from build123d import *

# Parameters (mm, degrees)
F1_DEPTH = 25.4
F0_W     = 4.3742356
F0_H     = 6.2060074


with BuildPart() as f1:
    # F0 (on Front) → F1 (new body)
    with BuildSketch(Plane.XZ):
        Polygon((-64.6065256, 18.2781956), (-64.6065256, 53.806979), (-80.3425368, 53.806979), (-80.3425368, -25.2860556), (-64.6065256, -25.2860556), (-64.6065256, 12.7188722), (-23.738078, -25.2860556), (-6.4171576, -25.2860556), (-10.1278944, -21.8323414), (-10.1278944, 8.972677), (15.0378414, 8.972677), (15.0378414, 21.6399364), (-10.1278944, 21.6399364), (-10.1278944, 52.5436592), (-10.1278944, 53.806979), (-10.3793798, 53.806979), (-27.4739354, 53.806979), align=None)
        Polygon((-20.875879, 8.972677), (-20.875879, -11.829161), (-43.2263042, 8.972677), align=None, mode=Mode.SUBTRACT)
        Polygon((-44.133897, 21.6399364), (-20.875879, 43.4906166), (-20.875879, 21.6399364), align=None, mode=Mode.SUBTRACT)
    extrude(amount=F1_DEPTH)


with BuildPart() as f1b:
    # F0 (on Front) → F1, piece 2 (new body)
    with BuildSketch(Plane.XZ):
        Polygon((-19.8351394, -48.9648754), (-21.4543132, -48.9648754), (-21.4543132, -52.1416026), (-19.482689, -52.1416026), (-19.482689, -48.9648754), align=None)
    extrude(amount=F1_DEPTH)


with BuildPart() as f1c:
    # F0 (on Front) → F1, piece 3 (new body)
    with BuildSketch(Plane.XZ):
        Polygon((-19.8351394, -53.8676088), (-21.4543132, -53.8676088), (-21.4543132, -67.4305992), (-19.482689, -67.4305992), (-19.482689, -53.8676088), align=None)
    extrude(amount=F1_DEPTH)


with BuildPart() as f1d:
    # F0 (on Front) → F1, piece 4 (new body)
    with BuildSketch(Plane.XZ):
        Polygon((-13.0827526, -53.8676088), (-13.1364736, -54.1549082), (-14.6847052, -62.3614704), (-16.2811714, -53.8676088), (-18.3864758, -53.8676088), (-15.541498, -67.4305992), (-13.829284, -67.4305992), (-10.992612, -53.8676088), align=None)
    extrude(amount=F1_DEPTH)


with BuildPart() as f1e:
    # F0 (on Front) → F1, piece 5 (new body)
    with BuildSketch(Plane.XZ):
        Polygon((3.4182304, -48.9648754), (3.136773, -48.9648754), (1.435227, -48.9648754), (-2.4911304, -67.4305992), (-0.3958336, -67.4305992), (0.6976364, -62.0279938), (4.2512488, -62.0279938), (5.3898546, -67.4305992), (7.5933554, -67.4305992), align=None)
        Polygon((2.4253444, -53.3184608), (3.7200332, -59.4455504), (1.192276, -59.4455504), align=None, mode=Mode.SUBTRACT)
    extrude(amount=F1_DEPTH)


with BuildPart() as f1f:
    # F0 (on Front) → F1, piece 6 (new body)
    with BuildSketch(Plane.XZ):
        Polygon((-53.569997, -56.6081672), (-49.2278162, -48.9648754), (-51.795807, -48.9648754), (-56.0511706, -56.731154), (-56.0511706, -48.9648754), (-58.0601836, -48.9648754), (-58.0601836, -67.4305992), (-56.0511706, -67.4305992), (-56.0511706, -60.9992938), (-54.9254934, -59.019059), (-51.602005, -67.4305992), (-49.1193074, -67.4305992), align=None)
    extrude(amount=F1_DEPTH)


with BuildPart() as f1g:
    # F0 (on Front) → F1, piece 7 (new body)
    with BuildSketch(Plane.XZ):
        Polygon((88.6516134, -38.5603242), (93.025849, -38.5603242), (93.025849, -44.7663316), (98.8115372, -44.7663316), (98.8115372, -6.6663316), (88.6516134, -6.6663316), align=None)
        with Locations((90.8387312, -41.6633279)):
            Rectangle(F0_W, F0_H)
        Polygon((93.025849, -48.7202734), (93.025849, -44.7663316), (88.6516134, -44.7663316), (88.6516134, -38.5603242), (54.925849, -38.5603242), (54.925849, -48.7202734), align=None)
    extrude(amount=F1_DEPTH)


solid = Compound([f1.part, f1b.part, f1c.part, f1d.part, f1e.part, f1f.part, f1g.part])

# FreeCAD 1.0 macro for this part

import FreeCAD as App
import Part
import Sketcher
from FreeCAD import Vector
Q = App.Units.Quantity

doc = App.newDocument("Part")
body = doc.addObject("PartDesign::Body", "Body")

# Sketch on XZ plane
sketch1 = body.newObject("Sketcher::SketchObject", "Sketch")
sketch1.AttachmentSupport = (doc.getObject("XZ_Plane"), [""])
sketch1.MapMode = "FlatFace"
sketch1.addGeometry([
    Part.LineSegment(Vector(-65, 18, 0), Vector(-65, 54, 0)),  # 0
    Part.LineSegment(Vector(-65, 54, 0), Vector(-80, 54, 0)),  # 1
    Part.LineSegment(Vector(-80, 54, 0), Vector(-80, -25, 0)),  # 2
    Part.LineSegment(Vector(-80, -25, 0), Vector(-65, -25, 0)),  # 3
    Part.LineSegment(Vector(-65, -25, 0), Vector(-65, 13, 0)),  # 4
    Part.LineSegment(Vector(-65, 13, 0), Vector(-24, -25, 0)),  # 5
    Part.LineSegment(Vector(-24, -25, 0), Vector(-6, -25, 0)),  # 6
    Part.LineSegment(Vector(-6, -25, 0), Vector(-10, -22, 0)),  # 7
    Part.LineSegment(Vector(-10, -22, 0), Vector(-10, 9, 0)),  # 8
    Part.LineSegment(Vector(-10, 9, 0), Vector(15, 9, 0)),  # 9
    Part.LineSegment(Vector(15, 9, 0), Vector(15, 22, 0)),  # 10
    Part.LineSegment(Vector(15, 22, 0), Vector(-10, 22, 0)),  # 11
    Part.LineSegment(Vector(-10, 22, 0), Vector(-10, 54, 0)),  # 12
    Part.LineSegment(Vector(-10, 54, 0), Vector(-27, 54, 0)),  # 13
    Part.LineSegment(Vector(-27, 54, 0), Vector(-65, 18, 0)),  # 14
    Part.LineSegment(Vector(-43, 9, 0), Vector(-21, 9, 0)),  # 15
    Part.LineSegment(Vector(-21, 9, 0), Vector(-21, -12, 0)),  # 16
    Part.LineSegment(Vector(-21, -12, 0), Vector(-43, 9, 0)),  # 17
    Part.LineSegment(Vector(-21, 22, 0), Vector(-44, 22, 0)),  # 18
    Part.LineSegment(Vector(-44, 22, 0), Vector(-21, 43, 0)),  # 19
    Part.LineSegment(Vector(-21, 43, 0), Vector(-21, 22, 0)),  # 20
], False)
sketch1.addConstraint([
    Sketcher.Constraint("Coincident", 0, 2, 1, 1),
    Sketcher.Constraint("Coincident", 1, 2, 2, 1),
    Sketcher.Constraint("Coincident", 2, 2, 3, 1),
    Sketcher.Constraint("Coincident", 3, 2, 4, 1),
    Sketcher.Constraint("Coincident", 4, 2, 5, 1),
    Sketcher.Constraint("Coincident", 5, 2, 6, 1),
    Sketcher.Constraint("Coincident", 6, 2, 7, 1),
    Sketcher.Constraint("Coincident", 7, 2, 8, 1),
    Sketcher.Constraint("Coincident", 8, 2, 9, 1),
    Sketcher.Constraint("Coincident", 9, 2, 10, 1),
    Sketcher.Constraint("Coincident", 10, 2, 11, 1),
    Sketcher.Constraint("Coincident", 11, 2, 12, 1),
    Sketcher.Constraint("Coincident", 12, 2, 13, 1),
    Sketcher.Constraint("Coincident", 13, 2, 14, 1),
    Sketcher.Constraint("Coincident", 14, 2, 0, 1),
    Sketcher.Constraint("Coincident", 15, 2, 16, 1),
    Sketcher.Constraint("Coincident", 16, 2, 17, 1),
    Sketcher.Constraint("Coincident", 17, 2, 15, 1),
    Sketcher.Constraint("Coincident", 18, 2, 19, 1),
    Sketcher.Constraint("Coincident", 19, 2, 20, 1),
    Sketcher.Constraint("Coincident", 20, 2, 18, 1),
    Sketcher.Constraint("Vertical", 0),
    Sketcher.Constraint("Horizontal", 1),
    Sketcher.Constraint("Vertical", 2),
    Sketcher.Constraint("Horizontal", 3),
    Sketcher.Constraint("Vertical", 4),
    Sketcher.Constraint("Horizontal", 6),
    Sketcher.Constraint("Vertical", 8),
    Sketcher.Constraint("Horizontal", 9),
    Sketcher.Constraint("Vertical", 10),
    Sketcher.Constraint("Horizontal", 11),
    Sketcher.Constraint("Vertical", 12),
    Sketcher.Constraint("Horizontal", 13),
    Sketcher.Constraint("Horizontal", 15),
    Sketcher.Constraint("Vertical", 16),
    Sketcher.Constraint("Horizontal", 18),
    Sketcher.Constraint("Vertical", 20),
    Sketcher.Constraint("Horizontal", 3, 2, 5, 2),
    Sketcher.Constraint("Horizontal", 1, 2, 12, 2),
    Sketcher.Constraint("Horizontal", 9, 2, 15, 2),
    Sketcher.Constraint("Horizontal", 11, 2, 18, 2),
    Sketcher.Constraint("Vertical", 0, 2, 3, 2),
    Sketcher.Constraint("Vertical", 8, 2, 11, 2),
    Sketcher.Constraint("Vertical", 16, 2, 19, 2),
    Sketcher.Constraint("Distance", 17, Q("30.5329 mm")),
    Sketcher.Constraint("DistanceX", 1, 2, 1, 1, Q("15.736011 mm")),
    Sketcher.Constraint("DistanceX", 6, 1, 6, 2, Q("17.32092 mm")),
    Sketcher.Constraint("DistanceX", 13, 2, 13, 1, Q("17.346041 mm")),
    Sketcher.Constraint("DistanceY", 8, 1, 8, 2, Q("30.805018 mm")),
    Sketcher.Constraint("DistanceY", 10, 1, 10, 2, Q("12.667259 mm")),
    Sketcher.Constraint("DistanceY", 20, 2, 20, 1, Q("21.85068 mm")),
    Sketcher.Constraint("DistanceX", 6, 2, 9, 2, Q("21.454999 mm")),
    Sketcher.Constraint("DistanceX", 1, 2, 13, 2, Q("52.868601 mm")),
    Sketcher.Constraint("DistanceX", 5, 2, 15, 2, Q("2.862199 mm")),
    Sketcher.Constraint("Distance", 7, Q("5.069291 mm")),
    Sketcher.Constraint("DistanceX", 9, 1, 9, 2, Q("25.165736 mm")),
    Sketcher.Constraint("DistanceX", 15, 1, 15, 2, Q("22.350425 mm")),
    Sketcher.Constraint("DistanceX", 18, 2, 18, 1, Q("23.258018 mm")),
    Sketcher.Constraint("DistanceY", 0, 1, 0, 2, Q("35.528783 mm")),
    Sketcher.Constraint("DistanceY", 2, 2, 2, 1, Q("79.093035 mm")),
    Sketcher.Constraint("DistanceY", 4, 1, 4, 2, Q("38.004928 mm")),
    Sketcher.Constraint("DistanceY", -1, 1, 0, 2, Q("53.806979 mm")),
    Sketcher.Constraint("DistanceX", 5, 2, -1, 1, Q("23.738078 mm")),
])
pad1 = body.newObject("PartDesign::Pad", "Pad")
pad1.Profile = sketch1
pad1.Length = Q("1 in")
body2 = doc.addObject("PartDesign::Body", "Body001")

# Sketch on XZ plane
sketch2 = body2.newObject("Sketcher::SketchObject", "Sketch001")
sketch2.AttachmentSupport = (doc.getObject("XZ_Plane001"), [""])
sketch2.MapMode = "FlatFace"
sketch2.addGeometry([
    Part.LineSegment(Vector(-21.5, -49, 0), Vector(-21.5, -52.1, 0)),
    Part.LineSegment(Vector(-21.5, -52.1, 0), Vector(-19.5, -52.1, 0)),
    Part.LineSegment(Vector(-19.5, -52.1, 0), Vector(-19.5, -49, 0)),
    Part.LineSegment(Vector(-19.5, -49, 0), Vector(-21.5, -49, 0)),
], False)
sketch2.addConstraint([
    Sketcher.Constraint("Coincident", 0, 2, 1, 1),
    Sketcher.Constraint("Coincident", 1, 2, 2, 1),
    Sketcher.Constraint("Coincident", 2, 2, 3, 1),
    Sketcher.Constraint("Coincident", 3, 2, 0, 1),
    Sketcher.Constraint("Vertical", 0),
    Sketcher.Constraint("Horizontal", 1),
    Sketcher.Constraint("Vertical", 2),
    Sketcher.Constraint("Horizontal", 3),
    Sketcher.Constraint("DistanceX", 1, 1, 1, 2, Q("1.971624 mm")),
    Sketcher.Constraint("DistanceY", 0, 2, 0, 1, Q("3.176727 mm")),
    Sketcher.Constraint("DistanceX", 1, 2, -1, 1, Q("19.482689 mm")),
    Sketcher.Constraint("DistanceY", 0, 2, -1, 1, Q("52.141603 mm")),
])
pad2 = body2.newObject("PartDesign::Pad", "Pad001")
pad2.Profile = sketch2
pad2.Length = Q("1 in")
body3 = doc.addObject("PartDesign::Body", "Body002")

# Sketch on XZ plane
sketch3 = body3.newObject("Sketcher::SketchObject", "Sketch002")
sketch3.AttachmentSupport = (doc.getObject("XZ_Plane002"), [""])
sketch3.MapMode = "FlatFace"
sketch3.addGeometry([
    Part.LineSegment(Vector(-21.5, -53.9, 0), Vector(-21.5, -67.4, 0)),
    Part.LineSegment(Vector(-21.5, -67.4, 0), Vector(-19.5, -67.4, 0)),
    Part.LineSegment(Vector(-19.5, -67.4, 0), Vector(-19.5, -53.9, 0)),
    Part.LineSegment(Vector(-19.5, -53.9, 0), Vector(-21.5, -53.9, 0)),
], False)
sketch3.addConstraint([
    Sketcher.Constraint("Coincident", 0, 2, 1, 1),
    Sketcher.Constraint("Coincident", 1, 2, 2, 1),
    Sketcher.Constraint("Coincident", 2, 2, 3, 1),
    Sketcher.Constraint("Coincident", 3, 2, 0, 1),
    Sketcher.Constraint("Vertical", 0),
    Sketcher.Constraint("Horizontal", 1),
    Sketcher.Constraint("Vertical", 2),
    Sketcher.Constraint("Horizontal", 3),
    Sketcher.Constraint("DistanceY", 0, 2, 0, 1, Q("13.56299 mm")),
    Sketcher.Constraint("DistanceY", 0, 2, -1, 1, Q("67.430599 mm")),
    Sketcher.Constraint("DistanceX", 1, 1, 1, 2, Q("1.971624 mm")),
    Sketcher.Constraint("DistanceX", 1, 2, -1, 1, Q("19.482689 mm")),
])
pad3 = body3.newObject("PartDesign::Pad", "Pad002")
pad3.Profile = sketch3
pad3.Length = Q("1 in")
body4 = doc.addObject("PartDesign::Body", "Body003")

# Sketch on XZ plane
sketch4 = body4.newObject("Sketcher::SketchObject", "Sketch003")
sketch4.AttachmentSupport = (doc.getObject("XZ_Plane003"), [""])
sketch4.MapMode = "FlatFace"
sketch4.addGeometry([
    Part.LineSegment(Vector(-13.08, -53.87, 0), Vector(-13.14, -54.15, 0)),  # 0
    Part.LineSegment(Vector(-13.14, -54.15, 0), Vector(-14.68, -62.36, 0)),  # 1
    Part.LineSegment(Vector(-14.68, -62.36, 0), Vector(-16.28, -53.87, 0)),  # 2
    Part.LineSegment(Vector(-16.28, -53.87, 0), Vector(-18.39, -53.87, 0)),  # 3
    Part.LineSegment(Vector(-18.39, -53.87, 0), Vector(-15.54, -67.43, 0)),  # 4
    Part.LineSegment(Vector(-15.54, -67.43, 0), Vector(-13.83, -67.43, 0)),  # 5
    Part.LineSegment(Vector(-13.83, -67.43, 0), Vector(-10.99, -53.87, 0)),  # 6
    Part.LineSegment(Vector(-10.99, -53.87, 0), Vector(-13.08, -53.87, 0)),  # 7
], False)
sketch4.addConstraint([
    Sketcher.Constraint("Coincident", 0, 2, 1, 1),
    Sketcher.Constraint("Coincident", 1, 2, 2, 1),
    Sketcher.Constraint("Coincident", 2, 2, 3, 1),
    Sketcher.Constraint("Coincident", 3, 2, 4, 1),
    Sketcher.Constraint("Coincident", 4, 2, 5, 1),
    Sketcher.Constraint("Coincident", 5, 2, 6, 1),
    Sketcher.Constraint("Coincident", 6, 2, 7, 1),
    Sketcher.Constraint("Coincident", 7, 2, 0, 1),
    Sketcher.Constraint("Horizontal", 3),
    Sketcher.Constraint("Horizontal", 5),
    Sketcher.Constraint("Horizontal", 7),
    Sketcher.Constraint("Horizontal", 3, 2, 6, 2),
    Sketcher.Constraint("DistanceX", 7, 2, 7, 1, Q("2.090141 mm")),
    Sketcher.Constraint("DistanceX", 4, 2, -1, 1, Q("15.541498 mm")),
    Sketcher.Constraint("DistanceY", 4, 2, -1, 1, Q("67.430599 mm")),
    Sketcher.Constraint("DistanceY", 0, 2, 2, 2, Q("0.287299 mm")),
    Sketcher.Constraint("Distance", 0, Q("0.292279 mm")),
    Sketcher.Constraint("Distance", 1, Q("8.351328 mm")),
    Sketcher.Constraint("Distance", 2, Q("8.642592 mm")),
    Sketcher.Constraint("Distance", 4, Q("13.85816 mm")),
    Sketcher.Constraint("DistanceX", 3, 2, 3, 1, Q("2.105304 mm")),
    Sketcher.Constraint("DistanceX", 5, 1, 5, 2, Q("1.712214 mm")),
    Sketcher.Constraint("DistanceY", 0, 2, -1, 1, Q("54.154908 mm")),
    Sketcher.Constraint("DistanceY", 1, 2, -1, 1, Q("62.36147 mm")),
])
pad4 = body4.newObject("PartDesign::Pad", "Pad003")
pad4.Profile = sketch4
pad4.Length = Q("1 in")
body5 = doc.addObject("PartDesign::Body", "Body004")

# Sketch on XZ plane
sketch5 = body5.newObject("Sketcher::SketchObject", "Sketch004")
sketch5.AttachmentSupport = (doc.getObject("XZ_Plane004"), [""])
sketch5.MapMode = "FlatFace"
sketch5.addGeometry([
    Part.LineSegment(Vector(3.4, -49, 0), Vector(1.4, -49, 0)),  # 0
    Part.LineSegment(Vector(1.4, -49, 0), Vector(-2.5, -67.4, 0)),  # 1
    Part.LineSegment(Vector(-2.5, -67.4, 0), Vector(-0.4, -67.4, 0)),  # 2
    Part.LineSegment(Vector(-0.4, -67.4, 0), Vector(0.7, -62, 0)),  # 3
    Part.LineSegment(Vector(0.7, -62, 0), Vector(4.3, -62, 0)),  # 4
    Part.LineSegment(Vector(4.3, -62, 0), Vector(5.4, -67.4, 0)),  # 5
    Part.LineSegment(Vector(5.4, -67.4, 0), Vector(7.6, -67.4, 0)),  # 6
    Part.LineSegment(Vector(7.6, -67.4, 0), Vector(3.4, -49, 0)),  # 7
    Part.LineSegment(Vector(1.2, -59.4, 0), Vector(2.4, -53.3, 0)),  # 8
    Part.LineSegment(Vector(2.4, -53.3, 0), Vector(3.7, -59.4, 0)),  # 9
    Part.LineSegment(Vector(3.7, -59.4, 0), Vector(1.2, -59.4, 0)),  # 10
], False)
sketch5.addConstraint([
    Sketcher.Constraint("Coincident", 0, 2, 1, 1),
    Sketcher.Constraint("Coincident", 1, 2, 2, 1),
    Sketcher.Constraint("Coincident", 2, 2, 3, 1),
    Sketcher.Constraint("Coincident", 3, 2, 4, 1),
    Sketcher.Constraint("Coincident", 4, 2, 5, 1),
    Sketcher.Constraint("Coincident", 5, 2, 6, 1),
    Sketcher.Constraint("Coincident", 6, 2, 7, 1),
    Sketcher.Constraint("Coincident", 7, 2, 0, 1),
    Sketcher.Constraint("Coincident", 8, 2, 9, 1),
    Sketcher.Constraint("Coincident", 9, 2, 10, 1),
    Sketcher.Constraint("Coincident", 10, 2, 8, 1),
    Sketcher.Constraint("Horizontal", 0),
    Sketcher.Constraint("Horizontal", 2),
    Sketcher.Constraint("Horizontal", 4),
    Sketcher.Constraint("Horizontal", 6),
    Sketcher.Constraint("Horizontal", 10),
    Sketcher.Constraint("Horizontal", 2, 2, 5, 2),
    Sketcher.Constraint("DistanceX", 6, 1, 6, 2, Q("2.203501 mm")),
    Sketcher.Constraint("DistanceY", 1, 2, -1, 1, Q("67.430599 mm")),
    Sketcher.Constraint("Distance", 1, Q("18.878539 mm")),
    Sketcher.Constraint("Distance", 7, Q("18.931842 mm")),
    Sketcher.Constraint("DistanceX", 0, 2, 0, 1, Q("1.983003 mm")),
    Sketcher.Constraint("DistanceX", 2, 1, 2, 2, Q("2.095297 mm")),
    Sketcher.Constraint("DistanceX", 4, 1, 4, 2, Q("3.553612 mm")),
    Sketcher.Constraint("DistanceX", 10, 2, 10, 1, Q("2.527757 mm")),
    Sketcher.Constraint("DistanceX", 1, 2, -1, 1, Q("2.49113 mm")),
    Sketcher.Constraint("DistanceX", -1, 1, 4, 2, Q("4.251249 mm")),
    Sketcher.Constraint("DistanceX", -1, 1, 7, 2, Q("3.41823 mm")),
    Sketcher.Constraint("DistanceY", 8, 2, -1, 1, Q("53.318461 mm")),
    Sketcher.Constraint("DistanceY", 9, 2, -1, 1, Q("59.44555 mm")),
    Sketcher.Constraint("DistanceY", 3, 2, 0, 2, Q("13.063118 mm")),
    Sketcher.Constraint("DistanceX", 3, 2, 8, 2, Q("1.727708 mm")),
    Sketcher.Constraint("DistanceX", 8, 2, 9, 2, Q("1.294689 mm")),
])
pad5 = body5.newObject("PartDesign::Pad", "Pad004")
pad5.Profile = sketch5
pad5.Length = Q("1 in")
body6 = doc.addObject("PartDesign::Body", "Body005")

# Sketch on XZ plane
sketch6 = body6.newObject("Sketcher::SketchObject", "Sketch005")
sketch6.AttachmentSupport = (doc.getObject("XZ_Plane005"), [""])
sketch6.MapMode = "FlatFace"
sketch6.addGeometry([
    Part.LineSegment(Vector(-53.6, -56.6, 0), Vector(-49.2, -49, 0)),  # 0
    Part.LineSegment(Vector(-49.2, -49, 0), Vector(-51.8, -49, 0)),  # 1
    Part.LineSegment(Vector(-51.8, -49, 0), Vector(-56.1, -56.7, 0)),  # 2
    Part.LineSegment(Vector(-56.1, -56.7, 0), Vector(-56.1, -49, 0)),  # 3
    Part.LineSegment(Vector(-56.1, -49, 0), Vector(-58.1, -49, 0)),  # 4
    Part.LineSegment(Vector(-58.1, -49, 0), Vector(-58.1, -67.4, 0)),  # 5
    Part.LineSegment(Vector(-58.1, -67.4, 0), Vector(-56.1, -67.4, 0)),  # 6
    Part.LineSegment(Vector(-56.1, -67.4, 0), Vector(-56.1, -61, 0)),  # 7
    Part.LineSegment(Vector(-56.1, -61, 0), Vector(-54.9, -59, 0)),  # 8
    Part.LineSegment(Vector(-54.9, -59, 0), Vector(-51.6, -67.4, 0)),  # 9
    Part.LineSegment(Vector(-51.6, -67.4, 0), Vector(-49.1, -67.4, 0)),  # 10
    Part.LineSegment(Vector(-49.1, -67.4, 0), Vector(-53.6, -56.6, 0)),  # 11
], False)
sketch6.addConstraint([
    Sketcher.Constraint("Coincident", 0, 2, 1, 1),
    Sketcher.Constraint("Coincident", 1, 2, 2, 1),
    Sketcher.Constraint("Coincident", 2, 2, 3, 1),
    Sketcher.Constraint("Coincident", 3, 2, 4, 1),
    Sketcher.Constraint("Coincident", 4, 2, 5, 1),
    Sketcher.Constraint("Coincident", 5, 2, 6, 1),
    Sketcher.Constraint("Coincident", 6, 2, 7, 1),
    Sketcher.Constraint("Coincident", 7, 2, 8, 1),
    Sketcher.Constraint("Coincident", 8, 2, 9, 1),
    Sketcher.Constraint("Coincident", 9, 2, 10, 1),
    Sketcher.Constraint("Coincident", 10, 2, 11, 1),
    Sketcher.Constraint("Coincident", 11, 2, 0, 1),
    Sketcher.Constraint("Horizontal", 1),
    Sketcher.Constraint("Vertical", 3),
    Sketcher.Constraint("Horizontal", 4),
    Sketcher.Constraint("Vertical", 5),
    Sketcher.Constraint("Horizontal", 6),
    Sketcher.Constraint("Vertical", 7),
    Sketcher.Constraint("Horizontal", 10),
    Sketcher.Constraint("Horizontal", 1, 2, 3, 2),
    Sketcher.Constraint("Horizontal", 6, 2, 9, 2),
    Sketcher.Constraint("Vertical", 3, 2, 6, 2),
    Sketcher.Constraint("DistanceX", 1, 2, 1, 1, Q("2.567991 mm")),
    Sketcher.Constraint("DistanceY", 3, 1, 3, 2, Q("7.766279 mm")),
    Sketcher.Constraint("DistanceY", 5, 2, -1, 1, Q("67.430599 mm")),
    Sketcher.Constraint("Distance", 0, Q("8.790588 mm")),
    Sketcher.Constraint("DistanceX", 4, 2, 4, 1, Q("2.009013 mm")),
    Sketcher.Constraint("DistanceX", 10, 1, 10, 2, Q("2.482698 mm")),
    Sketcher.Constraint("DistanceY", 5, 2, 5, 1, Q("18.465724 mm")),
    Sketcher.Constraint("DistanceY", 7, 1, 7, 2, Q("6.431305 mm")),
    Sketcher.Constraint("DistanceX", 2, 2, -1, 1, Q("56.051171 mm")),
    Sketcher.Constraint("DistanceY", 8, 2, -1, 1, Q("59.019059 mm")),
    Sketcher.Constraint("DistanceX", 5, 2, 8, 2, Q("3.13469 mm")),
    Sketcher.Constraint("DistanceX", 5, 2, 9, 2, Q("6.458179 mm")),
    Sketcher.Constraint("DistanceY", 8, 2, 11, 2, Q("2.410892 mm")),
    Sketcher.Constraint("Distance", 2, Q("8.855688 mm")),
])
pad6 = body6.newObject("PartDesign::Pad", "Pad005")
pad6.Profile = sketch6
pad6.Length = Q("1 in")
body7 = doc.addObject("PartDesign::Body", "Body006")

# Sketch on XZ plane
sketch7 = body7.newObject("Sketcher::SketchObject", "Sketch006")
sketch7.AttachmentSupport = (doc.getObject("XZ_Plane006"), [""])
sketch7.MapMode = "FlatFace"
sketch7.addGeometry([
    Part.LineSegment(Vector(98.8, -44.8, 0), Vector(98.8, -6.7, 0)),  # 0
    Part.LineSegment(Vector(98.8, -6.7, 0), Vector(88.7, -6.7, 0)),  # 1
    Part.LineSegment(Vector(88.7, -6.7, 0), Vector(88.7, -38.6, 0)),  # 2
    Part.LineSegment(Vector(88.7, -38.6, 0), Vector(54.9, -38.6, 0)),  # 3
    Part.LineSegment(Vector(54.9, -38.6, 0), Vector(54.9, -48.7, 0)),  # 4
    Part.LineSegment(Vector(54.9, -48.7, 0), Vector(93, -48.7, 0)),  # 5
    Part.LineSegment(Vector(93, -48.7, 0), Vector(93, -44.8, 0)),  # 6
    Part.LineSegment(Vector(93, -44.8, 0), Vector(98.8, -44.8, 0)),  # 7
], False)
sketch7.addConstraint([
    Sketcher.Constraint("Coincident", 0, 2, 1, 1),
    Sketcher.Constraint("Coincident", 1, 2, 2, 1),
    Sketcher.Constraint("Coincident", 2, 2, 3, 1),
    Sketcher.Constraint("Coincident", 3, 2, 4, 1),
    Sketcher.Constraint("Coincident", 4, 2, 5, 1),
    Sketcher.Constraint("Coincident", 5, 2, 6, 1),
    Sketcher.Constraint("Coincident", 6, 2, 7, 1),
    Sketcher.Constraint("Coincident", 7, 2, 0, 1),
    Sketcher.Constraint("Vertical", 0),
    Sketcher.Constraint("Horizontal", 1),
    Sketcher.Constraint("Vertical", 2),
    Sketcher.Constraint("Horizontal", 3),
    Sketcher.Constraint("Vertical", 4),
    Sketcher.Constraint("Horizontal", 5),
    Sketcher.Constraint("Vertical", 6),
    Sketcher.Constraint("Horizontal", 7),
    Sketcher.Constraint("Equal", 5, 0),
    Sketcher.Constraint("DistanceX", 5, 1, 5, 2, Q("1.5 in")),
    Sketcher.Constraint("DistanceX", 7, 1, 7, 2, Q("5.785688 mm")),
    Sketcher.Constraint("DistanceY", 4, 2, 4, 1, Q("10.159949 mm")),
    Sketcher.Constraint("DistanceY", 6, 1, 6, 2, Q("3.953942 mm")),
    Sketcher.Constraint("DistanceX", 1, 2, 1, 1, Q("10.159924 mm")),
    Sketcher.Constraint("DistanceY", 0, 2, -1, 1, Q("6.666332 mm")),
    Sketcher.Constraint("DistanceX", -1, 1, 3, 2, Q("54.925849 mm")),
])
pad7 = body7.newObject("PartDesign::Pad", "Pad006")
pad7.Profile = sketch7
pad7.Length = Q("1 in")

doc.recompute()
